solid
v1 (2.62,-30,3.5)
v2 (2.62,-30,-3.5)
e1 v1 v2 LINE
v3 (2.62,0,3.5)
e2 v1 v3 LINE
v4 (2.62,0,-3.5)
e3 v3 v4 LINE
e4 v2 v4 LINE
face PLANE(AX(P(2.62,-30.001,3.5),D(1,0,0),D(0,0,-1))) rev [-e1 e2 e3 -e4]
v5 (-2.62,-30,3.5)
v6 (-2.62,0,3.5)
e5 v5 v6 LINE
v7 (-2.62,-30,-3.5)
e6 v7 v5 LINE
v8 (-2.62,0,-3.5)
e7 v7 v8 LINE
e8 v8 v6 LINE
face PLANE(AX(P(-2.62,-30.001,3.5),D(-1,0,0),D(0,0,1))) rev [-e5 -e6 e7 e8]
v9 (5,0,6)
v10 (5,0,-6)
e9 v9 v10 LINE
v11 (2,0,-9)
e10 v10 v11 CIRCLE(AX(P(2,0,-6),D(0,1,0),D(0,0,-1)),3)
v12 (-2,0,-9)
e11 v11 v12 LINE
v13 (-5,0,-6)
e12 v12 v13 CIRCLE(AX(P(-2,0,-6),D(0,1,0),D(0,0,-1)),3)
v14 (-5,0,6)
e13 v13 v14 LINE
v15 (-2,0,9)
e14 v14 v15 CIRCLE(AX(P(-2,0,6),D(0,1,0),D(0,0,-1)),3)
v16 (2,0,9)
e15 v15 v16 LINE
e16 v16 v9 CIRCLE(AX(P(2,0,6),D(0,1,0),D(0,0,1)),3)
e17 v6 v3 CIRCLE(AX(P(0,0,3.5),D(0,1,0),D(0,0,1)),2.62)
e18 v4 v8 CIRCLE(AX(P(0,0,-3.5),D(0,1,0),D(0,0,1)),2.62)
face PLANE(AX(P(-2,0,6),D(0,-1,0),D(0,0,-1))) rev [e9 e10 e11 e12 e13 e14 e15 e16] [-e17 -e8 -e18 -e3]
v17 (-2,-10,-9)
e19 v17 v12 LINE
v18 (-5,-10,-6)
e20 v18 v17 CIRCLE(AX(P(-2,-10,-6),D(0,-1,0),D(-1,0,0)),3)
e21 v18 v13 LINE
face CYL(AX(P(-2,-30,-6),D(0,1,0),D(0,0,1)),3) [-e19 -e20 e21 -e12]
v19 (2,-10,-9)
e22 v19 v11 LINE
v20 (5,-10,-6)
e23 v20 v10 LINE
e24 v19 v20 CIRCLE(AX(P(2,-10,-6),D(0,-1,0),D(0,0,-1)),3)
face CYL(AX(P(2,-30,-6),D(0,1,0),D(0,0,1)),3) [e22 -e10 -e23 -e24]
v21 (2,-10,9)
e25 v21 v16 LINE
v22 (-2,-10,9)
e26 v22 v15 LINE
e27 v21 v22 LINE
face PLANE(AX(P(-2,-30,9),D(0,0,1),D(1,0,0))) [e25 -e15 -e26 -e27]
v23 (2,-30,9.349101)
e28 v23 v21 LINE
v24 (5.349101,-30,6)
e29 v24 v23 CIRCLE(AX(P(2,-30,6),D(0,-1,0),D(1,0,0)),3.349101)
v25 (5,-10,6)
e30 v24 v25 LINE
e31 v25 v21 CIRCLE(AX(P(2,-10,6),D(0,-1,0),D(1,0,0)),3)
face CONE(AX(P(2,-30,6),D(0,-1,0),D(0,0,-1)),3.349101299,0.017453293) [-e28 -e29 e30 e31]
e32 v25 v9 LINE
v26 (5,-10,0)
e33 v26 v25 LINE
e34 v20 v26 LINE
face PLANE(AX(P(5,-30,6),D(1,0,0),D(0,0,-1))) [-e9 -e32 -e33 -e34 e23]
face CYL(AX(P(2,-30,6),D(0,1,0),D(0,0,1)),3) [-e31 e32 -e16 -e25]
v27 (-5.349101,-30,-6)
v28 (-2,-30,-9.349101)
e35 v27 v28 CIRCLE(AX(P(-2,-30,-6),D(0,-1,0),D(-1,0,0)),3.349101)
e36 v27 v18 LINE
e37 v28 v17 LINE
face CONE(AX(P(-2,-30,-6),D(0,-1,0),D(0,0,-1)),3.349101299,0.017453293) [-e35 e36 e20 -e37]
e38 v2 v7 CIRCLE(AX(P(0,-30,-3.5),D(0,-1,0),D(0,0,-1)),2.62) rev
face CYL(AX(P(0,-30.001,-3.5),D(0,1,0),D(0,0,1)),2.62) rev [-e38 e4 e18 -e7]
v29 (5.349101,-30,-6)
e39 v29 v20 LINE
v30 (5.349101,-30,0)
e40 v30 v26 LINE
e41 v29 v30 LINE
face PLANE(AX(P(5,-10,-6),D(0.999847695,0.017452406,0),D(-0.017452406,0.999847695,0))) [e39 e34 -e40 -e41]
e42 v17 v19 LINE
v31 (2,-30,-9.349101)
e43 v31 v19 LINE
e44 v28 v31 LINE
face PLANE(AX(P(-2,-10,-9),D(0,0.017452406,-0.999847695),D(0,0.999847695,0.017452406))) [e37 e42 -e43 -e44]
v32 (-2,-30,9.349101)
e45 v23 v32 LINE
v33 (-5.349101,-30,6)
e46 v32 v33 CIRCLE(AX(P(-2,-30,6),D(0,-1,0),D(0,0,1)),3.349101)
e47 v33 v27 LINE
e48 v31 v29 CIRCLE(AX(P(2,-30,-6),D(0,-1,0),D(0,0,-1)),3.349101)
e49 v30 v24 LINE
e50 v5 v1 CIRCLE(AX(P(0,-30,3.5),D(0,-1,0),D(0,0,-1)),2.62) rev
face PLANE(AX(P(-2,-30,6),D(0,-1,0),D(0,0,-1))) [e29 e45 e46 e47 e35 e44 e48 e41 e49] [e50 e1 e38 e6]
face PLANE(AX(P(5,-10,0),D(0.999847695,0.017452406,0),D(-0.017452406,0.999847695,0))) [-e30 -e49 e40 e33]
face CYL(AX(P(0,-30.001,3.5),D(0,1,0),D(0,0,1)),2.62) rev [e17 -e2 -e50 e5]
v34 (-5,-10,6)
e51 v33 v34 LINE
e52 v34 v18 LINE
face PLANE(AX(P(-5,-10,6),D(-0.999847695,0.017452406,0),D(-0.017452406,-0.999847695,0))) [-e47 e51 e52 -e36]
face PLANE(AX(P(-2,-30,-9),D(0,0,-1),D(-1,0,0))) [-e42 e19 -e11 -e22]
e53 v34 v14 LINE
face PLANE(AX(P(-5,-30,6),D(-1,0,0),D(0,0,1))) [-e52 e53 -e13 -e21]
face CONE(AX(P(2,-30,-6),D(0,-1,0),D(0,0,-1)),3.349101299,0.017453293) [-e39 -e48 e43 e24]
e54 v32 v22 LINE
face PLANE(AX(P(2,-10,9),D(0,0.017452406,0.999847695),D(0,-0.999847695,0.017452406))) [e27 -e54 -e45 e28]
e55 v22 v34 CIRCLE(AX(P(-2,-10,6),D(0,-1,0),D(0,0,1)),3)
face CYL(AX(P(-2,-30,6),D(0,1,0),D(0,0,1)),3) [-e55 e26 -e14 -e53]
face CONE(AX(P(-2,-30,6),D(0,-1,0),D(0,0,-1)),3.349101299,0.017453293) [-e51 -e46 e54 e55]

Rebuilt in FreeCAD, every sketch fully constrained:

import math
import FreeCAD as App
import Part
import Sketcher
from FreeCAD import Vector
Q = App.Units.Quantity


def add_polygon(sketch, points):
    """Adds a closed chain of lines whose ends are joined by coincident constraints."""
    first, n = sketch.GeometryCount, len(points)
    for a, b in zip(points, points[1:] + points[:1]):
        sketch.addGeometry(Part.LineSegment(App.Vector(*a, 0), App.Vector(*b, 0)), False)
    for i in range(n):
        sketch.addConstraint(Sketcher.Constraint("Coincident", first + i, 2, first + (i + 1) % n, 1))

doc = App.newDocument("Part")
body = doc.addObject("PartDesign::Body", "Body")

# Sketch on XZ plane
sketch1 = doc.addObject("Sketcher::SketchObject", "Sketch")
body.addObject(sketch1)
sketch1.AttachmentSupport = (doc.XZ_Plane, [""])
sketch1.MapMode = "FlatFace"
sketch1.addGeometry(Part.LineSegment(Vector(-2, 9, 0), Vector(2, 9, 0)), False)
sketch1.addGeometry(Part.ArcOfCircle(Part.Circle(Vector(2, 6, 0), Vector(0, 0, 1), 3), math.radians(0), math.radians(90)), False)
sketch1.addGeometry(Part.LineSegment(Vector(5, 6, 0), Vector(5, -6, 0)), False)
sketch1.addGeometry(Part.ArcOfCircle(Part.Circle(Vector(2, -6, 0), Vector(0, 0, 1), 3), math.radians(-90), math.radians(0)), False)
sketch1.addGeometry(Part.LineSegment(Vector(2, -9, 0), Vector(-2, -9, 0)), False)
sketch1.addGeometry(Part.ArcOfCircle(Part.Circle(Vector(-2, -6, 0), Vector(0, 0, 1), 3), math.radians(180), math.radians(270)), False)
sketch1.addGeometry(Part.LineSegment(Vector(-5, -6, 0), Vector(-5, 6, 0)), False)
sketch1.addGeometry(Part.ArcOfCircle(Part.Circle(Vector(-2, 6, 0), Vector(0, 0, 1), 3), math.radians(90), math.radians(180)), False)
sketch1.addConstraint(Sketcher.Constraint("Tangent", 0, 2, 1, 2))
sketch1.addConstraint(Sketcher.Constraint("Tangent", 1, 1, 2, 1))
sketch1.addConstraint(Sketcher.Constraint("Tangent", 2, 2, 3, 2))
sketch1.addConstraint(Sketcher.Constraint("Tangent", 3, 1, 4, 1))
sketch1.addConstraint(Sketcher.Constraint("Tangent", 4, 2, 5, 2))
sketch1.addConstraint(Sketcher.Constraint("Tangent", 5, 1, 6, 1))
sketch1.addConstraint(Sketcher.Constraint("Tangent", 6, 2, 7, 2))
sketch1.addConstraint(Sketcher.Constraint("Tangent", 7, 1, 0, 1))
sketch1.addConstraint(Sketcher.Constraint("Horizontal", 0))
sketch1.addConstraint(Sketcher.Constraint("Vertical", 2))
sketch1.addConstraint(Sketcher.Constraint("Horizontal", 4))
sketch1.addConstraint(Sketcher.Constraint("Vertical", 6))
sketch1.addConstraint(Sketcher.Constraint("Equal", 1, 3))
sketch1.addConstraint(Sketcher.Constraint("Equal", 3, 5))
sketch1.addConstraint(Sketcher.Constraint("Equal", 5, 7))
sketch1.addConstraint(Sketcher.Constraint("Symmetric", 1, 3, 5, 3, -1, 1))
sketch1.addConstraint(Sketcher.Constraint("Radius", 1, 3.0))
sketch1.addConstraint(Sketcher.Constraint("DistanceX", 0, 1, 0, 2, 4.0))
sketch1.addConstraint(Sketcher.Constraint("DistanceY", 2, 2, 2, 1, 12.0))
pad1 = doc.addObject("PartDesign::Pad", "Pad")
body.addObject(pad1)
pad1.Profile = sketch1
pad1.Length = 30

# Sketch on XZ plane
sketch2 = doc.addObject("Sketcher::SketchObject", "Sketch001")
body.addObject(sketch2)
sketch2.AttachmentSupport = (doc.XZ_Plane, [""])
sketch2.MapMode = "FlatFace"
sketch2.addGeometry(Part.LineSegment(Vector(-2.6, -3.5, 0), Vector(-2.6, 3.5, 0)), False)
sketch2.addGeometry(Part.ArcOfCircle(Part.Circle(Vector(0, 3.5, 0), Vector(0, 0, 1), 2.6), math.radians(0), math.radians(180)), False)
sketch2.addGeometry(Part.LineSegment(Vector(2.6, 3.5, 0), Vector(2.6, -3.5, 0)), False)
sketch2.addGeometry(Part.ArcOfCircle(Part.Circle(Vector(0, -3.5, 0), Vector(0, 0, 1), 2.6), math.radians(180), math.radians(360)), False)
sketch2.addConstraint(Sketcher.Constraint("Tangent", 0, 2, 1, 2))
sketch2.addConstraint(Sketcher.Constraint("Tangent", 1, 1, 2, 1))
sketch2.addConstraint(Sketcher.Constraint("Tangent", 2, 2, 3, 2))
sketch2.addConstraint(Sketcher.Constraint("Tangent", 3, 1, 0, 1))
sketch2.addConstraint(Sketcher.Constraint("Vertical", 0))
sketch2.addConstraint(Sketcher.Constraint("Vertical", 2))
sketch2.addConstraint(Sketcher.Constraint("Symmetric", 1, 3, 3, 3, -1, 1))
sketch2.addConstraint(Sketcher.Constraint("DistanceY", 0, 1, 0, 2, 7.0))
sketch2.addConstraint(Sketcher.Constraint("Radius", 1, 2.62))
pocket1 = doc.addObject("PartDesign::Pocket", "Pocket")
body.addObject(pocket1)
pocket1.Profile = sketch2
pocket1.Type = "UpToFirst"
pocket1.Reversed = True

# Sketch on XY plane
sketch3 = doc.addObject("Sketcher::SketchObject", "Sketch002")
body.addObject(sketch3)
sketch3.AttachmentSupport = (doc.XY_Plane, [""])
sketch3.MapMode = "FlatFace"
add_polygon(sketch3, [(5.35, -30), (5, -10), (5, -30)])  # lines 0-2
sketch3.addConstraint(Sketcher.Constraint("Vertical", 1))
sketch3.addConstraint(Sketcher.Constraint("Horizontal", 2))
sketch3.addConstraint(Sketcher.Constraint("DistanceY", 1, 2, 1, 1, 20.0))
sketch3.addConstraint(Sketcher.Constraint("Angle", 0, Q("91 deg")))
sketch3.addConstraint(Sketcher.Constraint("DistanceX", -1, 1, 0, 2, 5.0))
sketch3.addConstraint(Sketcher.Constraint("DistanceY", 0, 2, -1, 1, 10.0))

# Sketch on XZ plane
sketch4 = doc.addObject("Sketcher::SketchObject", "Sketch003")
body.addObject(sketch4)
sketch4.AttachmentSupport = (doc.XZ_Plane, [""])
sketch4.MapMode = "FlatFace"
sketch4.addGeometry(Part.LineSegment(Vector(-2, 9, 0), Vector(2, 9, 0)), False)
sketch4.addGeometry(Part.ArcOfCircle(Part.Circle(Vector(2, 6, 0), Vector(0, 0, 1), 3), math.radians(0), math.radians(90)), False)
sketch4.addGeometry(Part.LineSegment(Vector(5, 6, 0), Vector(5, -6, 0)), False)
sketch4.addGeometry(Part.ArcOfCircle(Part.Circle(Vector(2, -6, 0), Vector(0, 0, 1), 3), math.radians(-90), math.radians(0)), False)
sketch4.addGeometry(Part.LineSegment(Vector(2, -9, 0), Vector(-2, -9, 0)), False)
sketch4.addGeometry(Part.ArcOfCircle(Part.Circle(Vector(-2, -6, 0), Vector(0, 0, 1), 3), math.radians(180), math.radians(270)), False)
sketch4.addGeometry(Part.LineSegment(Vector(-5, -6, 0), Vector(-5, 6, 0)), False)
sketch4.addGeometry(Part.ArcOfCircle(Part.Circle(Vector(-2, 6, 0), Vector(0, 0, 1), 3), math.radians(90), math.radians(180)), False)
sketch4.addConstraint(Sketcher.Constraint("Tangent", 0, 2, 1, 2))
sketch4.addConstraint(Sketcher.Constraint("Tangent", 1, 1, 2, 1))
sketch4.addConstraint(Sketcher.Constraint("Tangent", 2, 2, 3, 2))
sketch4.addConstraint(Sketcher.Constraint("Tangent", 3, 1, 4, 1))
sketch4.addConstraint(Sketcher.Constraint("Tangent", 4, 2, 5, 2))
sketch4.addConstraint(Sketcher.Constraint("Tangent", 5, 1, 6, 1))
sketch4.addConstraint(Sketcher.Constraint("Tangent", 6, 2, 7, 2))
sketch4.addConstraint(Sketcher.Constraint("Tangent", 7, 1, 0, 1))
sketch4.addConstraint(Sketcher.Constraint("Horizontal", 0))
sketch4.addConstraint(Sketcher.Constraint("Vertical", 2))
sketch4.addConstraint(Sketcher.Constraint("Horizontal", 4))
sketch4.addConstraint(Sketcher.Constraint("Vertical", 6))
sketch4.addConstraint(Sketcher.Constraint("Equal", 1, 3))
sketch4.addConstraint(Sketcher.Constraint("Equal", 3, 5))
sketch4.addConstraint(Sketcher.Constraint("Equal", 5, 7))
sketch4.addConstraint(Sketcher.Constraint("Symmetric", 1, 3, 5, 3, -1, 1))
sketch4.addConstraint(Sketcher.Constraint("Radius", 1, 3.0))
sketch4.addConstraint(Sketcher.Constraint("DistanceX", 0, 1, 0, 2, 4.0))
sketch4.addConstraint(Sketcher.Constraint("DistanceY", 2, 2, 2, 1, 12.0))
doc.recompute()

additivepipe = doc.addObject("PartDesign::AdditivePipe", "AdditivePipe")
body.addObject(additivepipe)
additivepipe.Profile = sketch3
additivepipe.Spine = (sketch4, ["Edge1", "Edge2", "Edge3", "Edge4", "Edge5", "Edge6", "Edge7", "Edge8"])

doc.recompute()
